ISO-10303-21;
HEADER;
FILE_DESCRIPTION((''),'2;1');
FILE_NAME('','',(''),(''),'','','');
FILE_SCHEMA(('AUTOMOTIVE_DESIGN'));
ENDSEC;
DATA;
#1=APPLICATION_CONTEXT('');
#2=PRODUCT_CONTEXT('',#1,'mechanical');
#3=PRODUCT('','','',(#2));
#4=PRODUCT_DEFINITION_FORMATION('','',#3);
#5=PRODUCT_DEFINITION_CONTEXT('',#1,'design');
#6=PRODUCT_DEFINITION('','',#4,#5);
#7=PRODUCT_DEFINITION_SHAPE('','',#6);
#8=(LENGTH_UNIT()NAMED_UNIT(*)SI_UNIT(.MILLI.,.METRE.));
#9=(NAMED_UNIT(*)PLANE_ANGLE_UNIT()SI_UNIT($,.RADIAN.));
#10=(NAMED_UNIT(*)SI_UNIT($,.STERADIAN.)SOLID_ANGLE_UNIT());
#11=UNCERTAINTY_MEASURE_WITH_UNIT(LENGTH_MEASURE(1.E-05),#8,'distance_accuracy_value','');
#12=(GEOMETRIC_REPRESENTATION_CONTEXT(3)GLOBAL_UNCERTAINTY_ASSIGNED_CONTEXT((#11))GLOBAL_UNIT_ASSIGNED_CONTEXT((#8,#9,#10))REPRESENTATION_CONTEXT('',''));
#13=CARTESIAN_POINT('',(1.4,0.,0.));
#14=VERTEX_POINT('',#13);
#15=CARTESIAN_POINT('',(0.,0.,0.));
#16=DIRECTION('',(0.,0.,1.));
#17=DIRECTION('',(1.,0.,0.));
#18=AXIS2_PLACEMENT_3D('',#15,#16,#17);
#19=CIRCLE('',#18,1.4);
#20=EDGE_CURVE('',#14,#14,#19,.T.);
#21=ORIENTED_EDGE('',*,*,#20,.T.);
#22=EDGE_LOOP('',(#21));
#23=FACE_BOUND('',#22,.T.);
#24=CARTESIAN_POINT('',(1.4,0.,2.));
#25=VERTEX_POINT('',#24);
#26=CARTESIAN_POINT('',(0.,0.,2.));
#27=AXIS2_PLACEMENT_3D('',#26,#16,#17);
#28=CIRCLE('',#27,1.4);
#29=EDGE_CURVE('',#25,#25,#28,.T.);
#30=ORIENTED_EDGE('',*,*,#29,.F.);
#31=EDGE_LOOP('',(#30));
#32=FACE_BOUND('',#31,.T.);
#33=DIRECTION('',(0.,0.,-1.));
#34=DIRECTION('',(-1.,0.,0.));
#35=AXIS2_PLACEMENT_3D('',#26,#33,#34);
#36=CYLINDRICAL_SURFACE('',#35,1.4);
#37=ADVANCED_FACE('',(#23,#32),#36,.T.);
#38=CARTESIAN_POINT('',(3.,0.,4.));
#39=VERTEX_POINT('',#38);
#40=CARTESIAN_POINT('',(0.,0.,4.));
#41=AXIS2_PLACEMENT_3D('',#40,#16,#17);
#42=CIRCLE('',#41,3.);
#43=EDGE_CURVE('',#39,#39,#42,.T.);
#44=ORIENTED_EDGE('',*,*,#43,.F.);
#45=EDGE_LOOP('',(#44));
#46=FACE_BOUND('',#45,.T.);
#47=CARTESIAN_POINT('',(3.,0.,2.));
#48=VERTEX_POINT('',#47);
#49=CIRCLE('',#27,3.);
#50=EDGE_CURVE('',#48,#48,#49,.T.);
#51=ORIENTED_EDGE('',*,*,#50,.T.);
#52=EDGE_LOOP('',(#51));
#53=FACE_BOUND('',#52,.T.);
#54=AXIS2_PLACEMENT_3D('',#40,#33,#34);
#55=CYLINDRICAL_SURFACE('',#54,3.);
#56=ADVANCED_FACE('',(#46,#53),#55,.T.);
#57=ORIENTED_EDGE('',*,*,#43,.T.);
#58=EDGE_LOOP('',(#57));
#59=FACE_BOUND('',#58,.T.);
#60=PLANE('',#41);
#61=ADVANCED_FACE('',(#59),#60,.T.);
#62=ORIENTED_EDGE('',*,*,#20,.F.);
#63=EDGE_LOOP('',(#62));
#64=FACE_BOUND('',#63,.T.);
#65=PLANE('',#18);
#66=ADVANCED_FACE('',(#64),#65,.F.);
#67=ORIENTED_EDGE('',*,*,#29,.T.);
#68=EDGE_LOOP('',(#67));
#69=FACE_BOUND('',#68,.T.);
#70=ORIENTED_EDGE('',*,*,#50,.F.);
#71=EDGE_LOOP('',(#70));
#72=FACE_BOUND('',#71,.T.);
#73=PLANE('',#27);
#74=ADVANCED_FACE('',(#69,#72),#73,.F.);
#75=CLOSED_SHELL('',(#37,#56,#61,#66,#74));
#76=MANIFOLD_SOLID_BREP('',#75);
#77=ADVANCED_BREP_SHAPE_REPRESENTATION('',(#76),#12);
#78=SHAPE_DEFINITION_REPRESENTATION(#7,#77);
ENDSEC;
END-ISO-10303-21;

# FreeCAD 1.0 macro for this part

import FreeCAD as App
import Part
import Sketcher
from FreeCAD import Vector

doc = App.newDocument("Part")
body = doc.addObject("PartDesign::Body", "Body")

sketch1 = body.newObject("Sketcher::SketchObject", "Sketch")
sketch1.AttachmentSupport = (doc.getObject("XY_Plane"), [""])
sketch1.MapMode = "FlatFace"
sketch1.addGeometry(Part.Circle(Vector(0, 0, 0), Vector(0, 0, 1), 1.4), False)
sketch1.addConstraint([
    Sketcher.Constraint("Coincident", 0, 3, -1, 1),
    Sketcher.Constraint("Diameter", 0, 2.8),
])
pad1 = body.newObject("PartDesign::Pad", "Pad")
pad1.Profile = sketch1
pad1.Length = 2

sketch2 = body.newObject("Sketcher::SketchObject", "Sketch001")
sketch2.AttachmentSupport = (doc.getObject("XY_Plane"), [""])
sketch2.MapMode = "FlatFace"
sketch2.AttachmentOffset = App.Placement(Vector(0, 0, 2), App.Rotation())
sketch2.addGeometry(Part.Circle(Vector(0, 0, 0), Vector(0, 0, 1), 3), False)
sketch2.addConstraint([
    Sketcher.Constraint("Coincident", 0, 3, -1, 1),
    Sketcher.Constraint("Diameter", 0, 6.0),
])
pad2 = body.newObject("PartDesign::Pad", "Pad001")
pad2.Profile = sketch2
pad2.Length = 2

doc.recompute()
